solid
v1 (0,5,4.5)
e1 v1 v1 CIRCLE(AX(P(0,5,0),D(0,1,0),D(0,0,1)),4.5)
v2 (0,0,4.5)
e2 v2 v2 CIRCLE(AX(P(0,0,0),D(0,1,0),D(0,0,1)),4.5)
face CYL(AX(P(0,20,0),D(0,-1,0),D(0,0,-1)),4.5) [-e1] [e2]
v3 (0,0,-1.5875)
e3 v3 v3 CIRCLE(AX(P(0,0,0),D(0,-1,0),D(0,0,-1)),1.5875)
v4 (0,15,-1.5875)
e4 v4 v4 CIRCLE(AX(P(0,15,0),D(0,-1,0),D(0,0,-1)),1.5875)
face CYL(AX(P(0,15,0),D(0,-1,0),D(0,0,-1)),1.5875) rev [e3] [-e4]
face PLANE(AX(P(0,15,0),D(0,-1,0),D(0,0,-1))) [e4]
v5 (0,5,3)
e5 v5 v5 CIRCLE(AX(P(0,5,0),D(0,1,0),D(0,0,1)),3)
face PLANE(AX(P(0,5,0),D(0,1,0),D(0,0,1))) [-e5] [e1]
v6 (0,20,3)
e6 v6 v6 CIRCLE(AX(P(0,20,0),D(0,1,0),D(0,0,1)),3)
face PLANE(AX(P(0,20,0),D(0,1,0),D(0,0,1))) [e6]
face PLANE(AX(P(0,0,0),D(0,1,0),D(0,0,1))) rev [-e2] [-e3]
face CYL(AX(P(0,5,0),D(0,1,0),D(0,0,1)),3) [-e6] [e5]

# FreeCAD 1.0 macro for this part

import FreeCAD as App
import Part
import Sketcher

V = App.Vector

doc = App.newDocument("Part")
params = doc.addObject("Spreadsheet::Sheet", "Params")
for row, (alias, value) in enumerate([
    ("sketch1_diameter", "9 mm"),
    ("pad1_length", "20 mm"),
    ("sketch2_diameter", "9 mm"),
    ("sketch2_diameter2", "6 mm"),
    ("pocket1_length", "15 mm"),
    ("pocket2_length", "15 mm"),
], start=1):
    params.set(f"A{row}", alias)
    params.set(f"B{row}", "=" + value)
    params.setAlias(f"B{row}", alias)

body = doc.addObject("PartDesign::Body", "Body")

sketch1 = body.newObject("Sketcher::SketchObject", "Sketch")
sketch1.AttachmentSupport = (doc.getObject("XZ_Plane"), [""])
sketch1.MapMode = "FlatFace"
sketch1.addGeometry(Part.Circle(V(0, 0, 0), V(0, 0, 1), 4.5), False)
sketch1.addConstraint(Sketcher.Constraint("Coincident", 0, 3, -1, 1))
sketch1.addConstraint(Sketcher.Constraint("Diameter", 0, 9.0))
sketch1.setExpression("Constraints[1]", "Params.sketch1_diameter")
pad1 = body.newObject("PartDesign::Pad", "Pad")
pad1.Profile = sketch1
pad1.setExpression("Length", "Params.pad1_length")
pad1.Reversed = True

sketch2 = body.newObject("Sketcher::SketchObject", "Sketch001")
sketch2.AttachmentSupport = (doc.getObject("XZ_Plane"), [""])
sketch2.MapMode = "FlatFace"
sketch2.AttachmentOffset = App.Placement(V(0, 0, -5), App.Rotation())
sketch2.addGeometry(Part.Circle(V(0, 0, 0), V(0, 0, 1), 4.5), False)
sketch2.addGeometry(Part.Circle(V(0, 0, 0), V(0, 0, 1), 3), False)
sketch2.addConstraint(Sketcher.Constraint("Coincident", 0, 3, -1, 1))
sketch2.addConstraint(Sketcher.Constraint("Coincident", 1, 3, -1, 1))
sketch2.addConstraint(Sketcher.Constraint("Diameter", 0, 9.0))
sketch2.addConstraint(Sketcher.Constraint("Diameter", 1, 6.0))
sketch2.setExpression("Constraints[2]", "Params.sketch2_diameter")
sketch2.setExpression("Constraints[3]", "Params.sketch2_diameter2")
pocket1 = body.newObject("PartDesign::Pocket", "Pocket")
pocket1.Profile = sketch2
pocket1.setExpression("Length", "Params.pocket1_length")

sketch3 = body.newObject("Sketcher::SketchObject", "Sketch002")
sketch3.AttachmentSupport = (doc.getObject("XZ_Plane"), [""])
sketch3.MapMode = "FlatFace"
sketch3.addGeometry(Part.Circle(V(0, 0, 0), V(0, 0, 1), 1.6), False)
sketch3.addConstraint(Sketcher.Constraint("Coincident", 0, 3, -1, 1))
sketch3.addConstraint(Sketcher.Constraint("Diameter", 0, 3.175))
pocket2 = body.newObject("PartDesign::Pocket", "Pocket001")
pocket2.Profile = sketch3
pocket2.setExpression("Length", "Params.pocket2_length")

doc.recompute()
